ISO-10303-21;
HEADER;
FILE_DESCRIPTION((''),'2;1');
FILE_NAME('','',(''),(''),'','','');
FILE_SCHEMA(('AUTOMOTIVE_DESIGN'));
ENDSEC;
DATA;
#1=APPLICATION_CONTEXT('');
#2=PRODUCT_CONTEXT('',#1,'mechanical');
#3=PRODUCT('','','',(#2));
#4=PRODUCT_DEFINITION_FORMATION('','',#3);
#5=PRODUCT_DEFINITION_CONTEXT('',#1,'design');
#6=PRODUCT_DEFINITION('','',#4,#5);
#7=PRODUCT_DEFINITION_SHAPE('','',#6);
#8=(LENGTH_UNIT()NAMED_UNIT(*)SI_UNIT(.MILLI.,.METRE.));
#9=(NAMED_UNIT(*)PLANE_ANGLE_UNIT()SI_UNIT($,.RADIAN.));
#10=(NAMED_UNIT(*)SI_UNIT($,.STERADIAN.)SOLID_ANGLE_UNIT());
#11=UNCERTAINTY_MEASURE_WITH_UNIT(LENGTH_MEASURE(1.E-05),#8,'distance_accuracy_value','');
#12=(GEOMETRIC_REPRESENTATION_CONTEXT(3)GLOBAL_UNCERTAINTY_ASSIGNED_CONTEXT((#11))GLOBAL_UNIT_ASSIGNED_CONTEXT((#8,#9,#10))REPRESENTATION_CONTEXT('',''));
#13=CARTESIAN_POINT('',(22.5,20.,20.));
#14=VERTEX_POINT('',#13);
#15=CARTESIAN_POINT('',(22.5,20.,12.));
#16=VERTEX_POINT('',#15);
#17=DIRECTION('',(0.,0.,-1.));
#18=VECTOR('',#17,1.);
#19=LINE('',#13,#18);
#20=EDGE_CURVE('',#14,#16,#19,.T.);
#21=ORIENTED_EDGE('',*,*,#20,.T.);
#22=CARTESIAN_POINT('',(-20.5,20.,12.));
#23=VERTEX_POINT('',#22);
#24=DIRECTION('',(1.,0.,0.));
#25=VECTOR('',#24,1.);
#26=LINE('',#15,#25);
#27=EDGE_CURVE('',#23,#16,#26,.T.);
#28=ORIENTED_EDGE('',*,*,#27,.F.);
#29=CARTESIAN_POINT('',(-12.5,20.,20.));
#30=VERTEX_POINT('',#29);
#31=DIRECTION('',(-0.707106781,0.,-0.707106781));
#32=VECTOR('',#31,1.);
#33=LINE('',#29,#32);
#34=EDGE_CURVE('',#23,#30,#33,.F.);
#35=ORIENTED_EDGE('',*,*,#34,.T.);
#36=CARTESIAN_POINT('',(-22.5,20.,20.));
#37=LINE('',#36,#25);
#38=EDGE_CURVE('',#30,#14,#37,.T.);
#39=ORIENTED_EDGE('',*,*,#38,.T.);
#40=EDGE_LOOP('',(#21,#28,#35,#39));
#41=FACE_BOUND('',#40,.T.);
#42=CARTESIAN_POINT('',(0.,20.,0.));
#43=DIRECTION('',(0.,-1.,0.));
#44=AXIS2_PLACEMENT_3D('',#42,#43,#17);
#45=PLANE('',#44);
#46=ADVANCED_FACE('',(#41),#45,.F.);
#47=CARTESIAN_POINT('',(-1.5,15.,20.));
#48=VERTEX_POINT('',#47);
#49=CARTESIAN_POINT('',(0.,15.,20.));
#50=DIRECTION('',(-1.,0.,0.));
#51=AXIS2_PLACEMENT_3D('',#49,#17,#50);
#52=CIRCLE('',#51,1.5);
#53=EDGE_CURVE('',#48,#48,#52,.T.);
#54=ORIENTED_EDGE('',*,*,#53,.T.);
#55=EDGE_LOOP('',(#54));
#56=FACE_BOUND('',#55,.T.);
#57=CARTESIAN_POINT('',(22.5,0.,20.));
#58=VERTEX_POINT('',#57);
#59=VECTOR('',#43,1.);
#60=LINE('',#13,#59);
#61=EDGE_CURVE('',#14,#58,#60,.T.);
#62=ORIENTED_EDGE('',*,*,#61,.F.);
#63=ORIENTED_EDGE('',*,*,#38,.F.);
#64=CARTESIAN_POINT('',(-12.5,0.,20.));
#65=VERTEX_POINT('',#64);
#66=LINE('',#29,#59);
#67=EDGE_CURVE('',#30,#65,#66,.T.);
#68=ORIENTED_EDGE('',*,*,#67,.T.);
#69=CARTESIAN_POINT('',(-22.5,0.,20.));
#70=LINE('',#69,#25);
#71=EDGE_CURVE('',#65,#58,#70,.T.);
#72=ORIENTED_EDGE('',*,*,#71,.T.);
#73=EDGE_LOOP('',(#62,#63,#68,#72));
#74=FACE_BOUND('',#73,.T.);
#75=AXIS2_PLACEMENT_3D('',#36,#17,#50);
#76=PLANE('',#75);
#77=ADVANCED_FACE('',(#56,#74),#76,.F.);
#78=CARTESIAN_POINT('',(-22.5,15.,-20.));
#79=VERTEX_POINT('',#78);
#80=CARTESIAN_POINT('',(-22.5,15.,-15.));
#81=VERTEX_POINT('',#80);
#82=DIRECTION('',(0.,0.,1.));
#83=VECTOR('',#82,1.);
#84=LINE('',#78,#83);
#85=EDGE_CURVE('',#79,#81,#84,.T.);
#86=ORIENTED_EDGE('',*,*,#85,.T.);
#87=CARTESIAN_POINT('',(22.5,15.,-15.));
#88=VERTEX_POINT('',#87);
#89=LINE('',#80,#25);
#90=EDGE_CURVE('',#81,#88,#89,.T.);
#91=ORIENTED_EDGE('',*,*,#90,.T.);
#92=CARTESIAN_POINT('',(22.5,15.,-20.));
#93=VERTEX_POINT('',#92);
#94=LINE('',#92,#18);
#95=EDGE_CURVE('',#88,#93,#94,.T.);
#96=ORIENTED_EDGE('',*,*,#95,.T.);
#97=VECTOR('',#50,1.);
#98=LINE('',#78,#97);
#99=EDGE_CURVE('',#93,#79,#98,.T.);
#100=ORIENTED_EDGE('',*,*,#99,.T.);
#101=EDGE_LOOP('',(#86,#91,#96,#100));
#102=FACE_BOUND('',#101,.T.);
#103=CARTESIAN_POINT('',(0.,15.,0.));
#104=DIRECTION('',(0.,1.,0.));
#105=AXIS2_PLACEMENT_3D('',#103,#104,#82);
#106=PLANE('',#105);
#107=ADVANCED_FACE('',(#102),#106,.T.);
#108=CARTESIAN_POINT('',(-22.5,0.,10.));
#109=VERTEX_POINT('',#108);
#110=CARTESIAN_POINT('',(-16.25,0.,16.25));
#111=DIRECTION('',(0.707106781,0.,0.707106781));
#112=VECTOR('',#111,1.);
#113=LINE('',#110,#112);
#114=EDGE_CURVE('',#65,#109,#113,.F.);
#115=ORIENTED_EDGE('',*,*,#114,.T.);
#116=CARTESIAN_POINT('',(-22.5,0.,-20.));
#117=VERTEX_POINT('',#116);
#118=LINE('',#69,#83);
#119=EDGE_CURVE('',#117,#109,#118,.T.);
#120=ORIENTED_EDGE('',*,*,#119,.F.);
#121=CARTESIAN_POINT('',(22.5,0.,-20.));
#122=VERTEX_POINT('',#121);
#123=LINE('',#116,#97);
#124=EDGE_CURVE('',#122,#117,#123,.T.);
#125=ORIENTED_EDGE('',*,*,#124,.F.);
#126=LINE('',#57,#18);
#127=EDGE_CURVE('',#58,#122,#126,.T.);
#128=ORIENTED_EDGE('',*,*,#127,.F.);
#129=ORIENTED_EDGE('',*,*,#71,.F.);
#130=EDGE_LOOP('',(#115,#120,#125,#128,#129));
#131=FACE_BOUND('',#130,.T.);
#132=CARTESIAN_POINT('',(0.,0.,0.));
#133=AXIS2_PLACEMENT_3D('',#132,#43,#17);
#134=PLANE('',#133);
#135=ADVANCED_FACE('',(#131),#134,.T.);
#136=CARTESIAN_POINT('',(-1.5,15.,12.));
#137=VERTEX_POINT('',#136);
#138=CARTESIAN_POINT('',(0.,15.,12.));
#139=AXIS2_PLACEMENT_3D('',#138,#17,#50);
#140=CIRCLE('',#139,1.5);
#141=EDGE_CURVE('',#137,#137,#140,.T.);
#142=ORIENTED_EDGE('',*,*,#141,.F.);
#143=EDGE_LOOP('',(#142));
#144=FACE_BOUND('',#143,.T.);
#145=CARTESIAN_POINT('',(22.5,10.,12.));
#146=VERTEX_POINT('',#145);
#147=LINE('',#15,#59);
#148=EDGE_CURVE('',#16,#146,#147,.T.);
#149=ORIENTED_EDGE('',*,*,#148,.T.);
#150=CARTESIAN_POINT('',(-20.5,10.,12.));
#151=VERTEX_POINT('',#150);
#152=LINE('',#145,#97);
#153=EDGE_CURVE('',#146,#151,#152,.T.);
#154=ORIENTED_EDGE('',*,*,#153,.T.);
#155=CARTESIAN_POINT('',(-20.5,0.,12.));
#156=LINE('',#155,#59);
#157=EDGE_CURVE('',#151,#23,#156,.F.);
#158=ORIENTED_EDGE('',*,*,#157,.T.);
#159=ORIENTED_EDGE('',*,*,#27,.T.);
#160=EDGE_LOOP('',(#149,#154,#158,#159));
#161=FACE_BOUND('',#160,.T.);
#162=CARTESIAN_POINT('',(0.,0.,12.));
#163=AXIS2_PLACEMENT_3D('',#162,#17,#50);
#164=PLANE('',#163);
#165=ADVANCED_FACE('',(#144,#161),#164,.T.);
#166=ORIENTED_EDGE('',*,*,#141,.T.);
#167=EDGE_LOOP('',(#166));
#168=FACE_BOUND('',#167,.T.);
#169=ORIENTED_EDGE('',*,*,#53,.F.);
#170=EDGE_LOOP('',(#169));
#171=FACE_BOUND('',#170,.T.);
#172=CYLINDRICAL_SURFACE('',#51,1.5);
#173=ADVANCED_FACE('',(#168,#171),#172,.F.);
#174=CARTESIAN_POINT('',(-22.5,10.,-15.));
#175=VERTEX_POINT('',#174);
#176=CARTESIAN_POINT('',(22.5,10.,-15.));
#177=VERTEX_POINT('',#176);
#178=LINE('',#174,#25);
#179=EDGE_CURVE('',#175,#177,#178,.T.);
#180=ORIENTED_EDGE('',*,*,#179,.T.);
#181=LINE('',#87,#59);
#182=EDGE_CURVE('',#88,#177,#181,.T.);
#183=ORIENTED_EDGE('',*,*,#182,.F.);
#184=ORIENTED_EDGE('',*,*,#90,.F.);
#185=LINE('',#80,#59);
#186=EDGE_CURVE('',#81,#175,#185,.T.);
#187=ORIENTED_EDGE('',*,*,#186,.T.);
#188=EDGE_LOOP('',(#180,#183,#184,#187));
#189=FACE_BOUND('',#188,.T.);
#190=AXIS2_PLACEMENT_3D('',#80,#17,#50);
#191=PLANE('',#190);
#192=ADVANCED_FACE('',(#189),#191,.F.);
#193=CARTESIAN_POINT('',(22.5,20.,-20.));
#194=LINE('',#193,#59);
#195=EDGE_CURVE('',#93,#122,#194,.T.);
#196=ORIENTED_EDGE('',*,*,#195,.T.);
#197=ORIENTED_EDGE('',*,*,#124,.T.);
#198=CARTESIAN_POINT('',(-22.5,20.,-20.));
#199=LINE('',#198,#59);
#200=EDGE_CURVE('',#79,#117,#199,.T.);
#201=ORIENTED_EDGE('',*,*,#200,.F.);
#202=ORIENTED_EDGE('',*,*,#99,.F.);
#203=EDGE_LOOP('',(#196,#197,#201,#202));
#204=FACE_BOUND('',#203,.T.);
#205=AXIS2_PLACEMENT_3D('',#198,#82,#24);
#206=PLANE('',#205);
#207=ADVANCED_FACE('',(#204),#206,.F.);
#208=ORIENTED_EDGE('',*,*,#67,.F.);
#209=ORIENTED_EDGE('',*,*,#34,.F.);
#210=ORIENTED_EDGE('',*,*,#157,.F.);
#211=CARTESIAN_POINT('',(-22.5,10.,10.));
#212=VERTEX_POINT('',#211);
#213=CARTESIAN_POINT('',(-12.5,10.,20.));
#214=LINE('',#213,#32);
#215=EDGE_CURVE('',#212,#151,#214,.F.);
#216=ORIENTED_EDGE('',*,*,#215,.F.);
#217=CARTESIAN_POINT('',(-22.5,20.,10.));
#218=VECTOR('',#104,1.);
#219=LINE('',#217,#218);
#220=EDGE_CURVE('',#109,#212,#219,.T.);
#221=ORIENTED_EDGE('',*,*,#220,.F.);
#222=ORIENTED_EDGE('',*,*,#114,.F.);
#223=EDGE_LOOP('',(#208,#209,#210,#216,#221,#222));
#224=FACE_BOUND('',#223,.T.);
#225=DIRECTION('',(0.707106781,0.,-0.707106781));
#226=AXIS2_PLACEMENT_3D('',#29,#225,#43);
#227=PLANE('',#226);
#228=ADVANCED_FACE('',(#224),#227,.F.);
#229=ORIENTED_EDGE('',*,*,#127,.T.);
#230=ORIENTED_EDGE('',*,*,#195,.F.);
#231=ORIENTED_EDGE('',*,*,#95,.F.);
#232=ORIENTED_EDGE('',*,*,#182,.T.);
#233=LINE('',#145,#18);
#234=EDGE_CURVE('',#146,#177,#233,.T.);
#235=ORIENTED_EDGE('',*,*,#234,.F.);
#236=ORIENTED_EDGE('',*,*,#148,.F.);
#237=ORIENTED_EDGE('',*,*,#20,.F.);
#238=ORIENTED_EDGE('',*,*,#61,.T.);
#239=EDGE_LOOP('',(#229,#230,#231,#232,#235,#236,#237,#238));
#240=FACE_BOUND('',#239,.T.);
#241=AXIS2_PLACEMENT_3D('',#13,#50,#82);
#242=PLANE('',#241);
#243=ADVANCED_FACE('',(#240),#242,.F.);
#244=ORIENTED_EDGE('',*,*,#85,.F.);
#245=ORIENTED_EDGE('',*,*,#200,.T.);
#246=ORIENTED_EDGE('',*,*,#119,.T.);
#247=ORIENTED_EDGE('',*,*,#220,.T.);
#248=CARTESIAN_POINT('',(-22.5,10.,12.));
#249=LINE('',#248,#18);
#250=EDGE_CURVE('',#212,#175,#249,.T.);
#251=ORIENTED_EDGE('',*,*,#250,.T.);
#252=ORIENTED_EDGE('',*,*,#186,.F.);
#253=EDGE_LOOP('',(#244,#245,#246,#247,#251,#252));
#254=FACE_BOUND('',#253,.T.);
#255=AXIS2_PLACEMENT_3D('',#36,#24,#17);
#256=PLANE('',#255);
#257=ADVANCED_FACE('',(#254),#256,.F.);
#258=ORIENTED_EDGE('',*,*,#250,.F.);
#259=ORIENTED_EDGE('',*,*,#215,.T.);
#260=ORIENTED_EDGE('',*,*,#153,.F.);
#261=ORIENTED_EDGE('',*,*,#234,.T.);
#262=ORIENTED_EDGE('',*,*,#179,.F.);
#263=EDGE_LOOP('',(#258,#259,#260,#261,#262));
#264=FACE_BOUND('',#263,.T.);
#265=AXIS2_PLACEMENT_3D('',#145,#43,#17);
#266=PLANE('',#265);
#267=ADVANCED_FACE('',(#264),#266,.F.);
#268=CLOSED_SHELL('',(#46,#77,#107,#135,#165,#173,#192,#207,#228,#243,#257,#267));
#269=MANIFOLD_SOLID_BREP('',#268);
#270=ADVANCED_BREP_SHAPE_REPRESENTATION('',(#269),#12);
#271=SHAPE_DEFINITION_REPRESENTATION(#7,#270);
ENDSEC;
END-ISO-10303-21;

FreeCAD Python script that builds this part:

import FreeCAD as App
import Part
import Sketcher

V = App.Vector
Q = App.Units.Quantity


def edges_at(feature, points):
    """Names of the edges that pass closest to the given points."""
    edges = feature.Shape.Edges
    near = lambda p: min(range(len(edges)), key=lambda i: edges[i].distToShape(Part.Vertex(*p))[0])
    return sorted({f"Edge{near(p) + 1}" for p in points})

doc = App.newDocument("Part")
body = doc.addObject("PartDesign::Body", "Body")

sketch1 = body.newObject("Sketcher::SketchObject", "Sketch")
sketch1.AttachmentSupport = (doc.getObject("XZ_Plane"), [""])
sketch1.MapMode = "FlatFace"
sketch1.addGeometry([
    Part.LineSegment(V(-22, -20, 0), V(-22, 20, 0)),
    Part.LineSegment(V(-22, 20, 0), V(22, 20, 0)),
    Part.LineSegment(V(22, 20, 0), V(22, -20, 0)),
    Part.LineSegment(V(22, -20, 0), V(-22, -20, 0)),
], False)
sketch1.addConstraint([
    Sketcher.Constraint("Coincident", 0, 2, 1, 1),
    Sketcher.Constraint("Coincident", 1, 2, 2, 1),
    Sketcher.Constraint("Coincident", 2, 2, 3, 1),
    Sketcher.Constraint("Coincident", 3, 2, 0, 1),
    Sketcher.Constraint("Vertical", 0),
    Sketcher.Constraint("Horizontal", 1),
    Sketcher.Constraint("Vertical", 2),
    Sketcher.Constraint("Horizontal", 3),
    Sketcher.Constraint("Symmetric", 0, 2, 2, 2, -1, 1),
    Sketcher.Constraint("DistanceX", 1, 1, 1, 2, Q("45 mm")),
    Sketcher.Constraint("DistanceY", 0, 1, 0, 2, Q("40 mm")),
])
pad1 = body.newObject("PartDesign::Pad", "Pad")
pad1.Profile = sketch1
pad1.Length = 20
pad1.Reversed = True

sketch2 = body.newObject("Sketcher::SketchObject", "Sketch001")
sketch2.AttachmentSupport = (doc.getObject("XY_Plane"), [""])
sketch2.MapMode = "FlatFace"
sketch2.AttachmentOffset = App.Placement(V(0, 0, -20), App.Rotation())
sketch2.addGeometry([
    Part.LineSegment(V(22, 20, 0), V(22, 10, 0)),
    Part.LineSegment(V(22, 10, 0), V(-22, 10, 0)),
    Part.LineSegment(V(-22, 10, 0), V(-22, 20, 0)),
    Part.LineSegment(V(-22, 20, 0), V(22, 20, 0)),
], False)
sketch2.addConstraint([
    Sketcher.Constraint("Coincident", 0, 2, 1, 1),
    Sketcher.Constraint("Coincident", 1, 2, 2, 1),
    Sketcher.Constraint("Coincident", 2, 2, 3, 1),
    Sketcher.Constraint("Coincident", 3, 2, 0, 1),
    Sketcher.Constraint("Vertical", 0),
    Sketcher.Constraint("Horizontal", 1),
    Sketcher.Constraint("Vertical", 2),
    Sketcher.Constraint("Horizontal", 3),
    Sketcher.Constraint("DistanceX", 1, 2, 1, 1, Q("45 mm")),
    Sketcher.Constraint("DistanceY", 0, 2, 0, 1, Q("10 mm")),
    Sketcher.Constraint("DistanceY", -1, 1, 0, 2, Q("10 mm")),
    Sketcher.Constraint("DistanceX", -1, 1, 0, 2, Q("22.5 mm")),
])
pocket1 = body.newObject("PartDesign::Pocket", "Pocket")
pocket1.Profile = sketch2
pocket1.Length = 32
pocket1.Reversed = True

sketch3 = body.newObject("Sketcher::SketchObject", "Sketch002")
sketch3.AttachmentSupport = (doc.getObject("XZ_Plane"), [""])
sketch3.MapMode = "FlatFace"
sketch3.AttachmentOffset = App.Placement(V(0, 0, -10), App.Rotation())
sketch3.addGeometry([
    Part.LineSegment(V(-22, -20, 0), V(-22, -15, 0)),
    Part.LineSegment(V(-22, -15, 0), V(22, -15, 0)),
    Part.LineSegment(V(22, -15, 0), V(22, -20, 0)),
    Part.LineSegment(V(22, -20, 0), V(-22, -20, 0)),
], False)
sketch3.addConstraint([
    Sketcher.Constraint("Coincident", 0, 2, 1, 1),
    Sketcher.Constraint("Coincident", 1, 2, 2, 1),
    Sketcher.Constraint("Coincident", 2, 2, 3, 1),
    Sketcher.Constraint("Coincident", 3, 2, 0, 1),
    Sketcher.Constraint("Vertical", 0),
    Sketcher.Constraint("Horizontal", 1),
    Sketcher.Constraint("Vertical", 2),
    Sketcher.Constraint("Horizontal", 3),
    Sketcher.Constraint("DistanceX", 1, 1, 1, 2, Q("45 mm")),
    Sketcher.Constraint("DistanceY", 0, 1, 0, 2, Q("5 mm")),
    Sketcher.Constraint("DistanceY", 0, 2, -1, 1, Q("15 mm")),
    Sketcher.Constraint("DistanceX", 0, 2, -1, 1, Q("22.5 mm")),
])
pad2 = body.newObject("PartDesign::Pad", "Pad001")
pad2.Profile = sketch3
pad2.Length = 5
pad2.Reversed = True

sketch4 = body.newObject("Sketcher::SketchObject", "Sketch003")
sketch4.AttachmentSupport = (doc.getObject("XY_Plane"), [""])
sketch4.MapMode = "FlatFace"
sketch4.AttachmentOffset = App.Placement(V(0, 0, 12), App.Rotation())
sketch4.addGeometry(Part.Circle(V(0, 15, 0), V(0, 0, 1), 1.5), False)
sketch4.addConstraint([
    Sketcher.Constraint("PointOnObject", 0, 3, -2),
    Sketcher.Constraint("Diameter", 0, Q("3 mm")),
    Sketcher.Constraint("DistanceY", -1, 1, 0, 3, Q("15 mm")),
])
pocket2 = body.newObject("PartDesign::Pocket", "Pocket001")
pocket2.Profile = sketch4
pocket2.Type = "ThroughAll"
pocket2.Reversed = True
doc.recompute()

chamfer = body.newObject("PartDesign::Chamfer", "Chamfer")
chamfer.Base = (pocket2, edges_at(pocket2, [(-22.5, 10, 20)]))
chamfer.Size = 10

doc.recompute()
